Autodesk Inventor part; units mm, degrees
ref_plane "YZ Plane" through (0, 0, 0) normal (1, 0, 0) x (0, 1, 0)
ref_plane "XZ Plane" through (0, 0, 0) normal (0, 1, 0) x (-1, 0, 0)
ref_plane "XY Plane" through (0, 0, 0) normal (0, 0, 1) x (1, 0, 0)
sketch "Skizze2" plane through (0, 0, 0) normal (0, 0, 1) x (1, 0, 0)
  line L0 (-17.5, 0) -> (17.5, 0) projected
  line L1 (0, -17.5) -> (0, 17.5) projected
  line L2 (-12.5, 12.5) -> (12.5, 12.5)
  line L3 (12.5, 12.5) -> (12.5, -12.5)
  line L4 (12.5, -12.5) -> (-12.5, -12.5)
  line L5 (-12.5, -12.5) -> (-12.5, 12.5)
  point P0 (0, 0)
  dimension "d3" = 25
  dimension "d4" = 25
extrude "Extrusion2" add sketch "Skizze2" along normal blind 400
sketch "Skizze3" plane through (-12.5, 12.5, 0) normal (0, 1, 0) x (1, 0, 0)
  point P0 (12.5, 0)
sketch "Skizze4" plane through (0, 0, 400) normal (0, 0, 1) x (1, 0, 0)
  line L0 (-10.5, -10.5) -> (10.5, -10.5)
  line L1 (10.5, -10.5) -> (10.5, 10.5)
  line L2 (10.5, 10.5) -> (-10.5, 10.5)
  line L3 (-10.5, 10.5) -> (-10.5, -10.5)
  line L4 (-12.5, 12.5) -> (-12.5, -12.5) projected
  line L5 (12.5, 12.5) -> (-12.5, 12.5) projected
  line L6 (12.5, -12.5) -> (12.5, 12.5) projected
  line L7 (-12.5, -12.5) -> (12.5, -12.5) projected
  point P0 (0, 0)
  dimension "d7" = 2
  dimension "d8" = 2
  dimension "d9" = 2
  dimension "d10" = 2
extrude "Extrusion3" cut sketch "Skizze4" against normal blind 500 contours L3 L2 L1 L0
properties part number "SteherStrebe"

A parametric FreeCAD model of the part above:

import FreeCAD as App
import Part
import Sketcher
from FreeCAD import Vector

doc = App.newDocument("Part")
params = doc.addObject("Spreadsheet::Sheet", "Params")
for row, (alias, value) in enumerate([
    ("sketch1_width", "25 mm"),
    ("pad1_length", "400 mm"),
    ("sketch2_width", "21 mm"),
    ("pocket1_length", "500 mm"),
], start=1):
    params.set(f"A{row}", alias)
    params.set(f"B{row}", "=" + value)
    params.setAlias(f"B{row}", alias)

body = doc.addObject("PartDesign::Body", "Body")

# Sketch on XY plane
sketch1 = body.newObject("Sketcher::SketchObject", "Sketch")
sketch1.AttachmentSupport = (doc.getObject("XY_Plane"), [""])
sketch1.MapMode = "FlatFace"
sketch1.addGeometry(Part.LineSegment(Vector(-12, 12, 0), Vector(-12, -12, 0)), False)
sketch1.addGeometry(Part.LineSegment(Vector(-12, -12, 0), Vector(12, -12, 0)), False)
sketch1.addGeometry(Part.LineSegment(Vector(12, -12, 0), Vector(12, 12, 0)), False)
sketch1.addGeometry(Part.LineSegment(Vector(12, 12, 0), Vector(-12, 12, 0)), False)
sketch1.addConstraint(Sketcher.Constraint("Coincident", 0, 2, 1, 1))
sketch1.addConstraint(Sketcher.Constraint("Coincident", 1, 2, 2, 1))
sketch1.addConstraint(Sketcher.Constraint("Coincident", 2, 2, 3, 1))
sketch1.addConstraint(Sketcher.Constraint("Coincident", 3, 2, 0, 1))
sketch1.addConstraint(Sketcher.Constraint("Vertical", 0))
sketch1.addConstraint(Sketcher.Constraint("Horizontal", 1))
sketch1.addConstraint(Sketcher.Constraint("Vertical", 2))
sketch1.addConstraint(Sketcher.Constraint("Horizontal", 3))
sketch1.addConstraint(Sketcher.Constraint("Symmetric", 0, 2, 2, 2, -1, 1))
sketch1.addConstraint(Sketcher.Constraint("Equal", 3, 0))
sketch1.addConstraint(Sketcher.Constraint("DistanceX", 1, 1, 1, 2, 25.0))
sketch1.setExpression("Constraints[10]", "Params.sketch1_width")
pad1 = body.newObject("PartDesign::Pad", "Pad")
pad1.Profile = sketch1
pad1.setExpression("Length", "Params.pad1_length")

# Sketch on XY plane
sketch2 = body.newObject("Sketcher::SketchObject", "Sketch001")
sketch2.AttachmentSupport = (doc.getObject("XY_Plane"), [""])
sketch2.MapMode = "FlatFace"
sketch2.AttachmentOffset = App.Placement(Vector(0, 0, 400), App.Rotation())
sketch2.addGeometry(Part.LineSegment(Vector(-10, 10, 0), Vector(-10, -10, 0)), False)
sketch2.addGeometry(Part.LineSegment(Vector(-10, -10, 0), Vector(10, -10, 0)), False)
sketch2.addGeometry(Part.LineSegment(Vector(10, -10, 0), Vector(10, 10, 0)), False)
sketch2.addGeometry(Part.LineSegment(Vector(10, 10, 0), Vector(-10, 10, 0)), False)
sketch2.addConstraint(Sketcher.Constraint("Coincident", 0, 2, 1, 1))
sketch2.addConstraint(Sketcher.Constraint("Coincident", 1, 2, 2, 1))
sketch2.addConstraint(Sketcher.Constraint("Coincident", 2, 2, 3, 1))
sketch2.addConstraint(Sketcher.Constraint("Coincident", 3, 2, 0, 1))
sketch2.addConstraint(Sketcher.Constraint("Vertical", 0))
sketch2.addConstraint(Sketcher.Constraint("Horizontal", 1))
sketch2.addConstraint(Sketcher.Constraint("Vertical", 2))
sketch2.addConstraint(Sketcher.Constraint("Horizontal", 3))
sketch2.addConstraint(Sketcher.Constraint("Symmetric", 0, 2, 2, 2, -1, 1))
sketch2.addConstraint(Sketcher.Constraint("Equal", 3, 0))
sketch2.addConstraint(Sketcher.Constraint("DistanceX", 1, 1, 1, 2, 21.0))
sketch2.setExpression("Constraints[10]", "Params.sketch2_width")
pocket1 = body.newObject("PartDesign::Pocket", "Pocket")
pocket1.Profile = sketch2
pocket1.setExpression("Length", "Params.pocket1_length")

doc.recompute()
